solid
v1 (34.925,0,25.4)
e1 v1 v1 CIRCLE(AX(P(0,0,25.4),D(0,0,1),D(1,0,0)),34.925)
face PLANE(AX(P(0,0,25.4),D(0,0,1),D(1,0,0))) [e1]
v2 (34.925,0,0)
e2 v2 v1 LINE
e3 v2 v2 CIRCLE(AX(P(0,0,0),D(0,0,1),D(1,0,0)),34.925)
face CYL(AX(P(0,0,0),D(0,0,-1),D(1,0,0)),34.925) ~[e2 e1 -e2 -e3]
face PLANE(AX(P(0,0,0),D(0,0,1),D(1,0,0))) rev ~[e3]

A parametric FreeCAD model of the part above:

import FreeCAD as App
import Part
import Sketcher

V = App.Vector
Q = App.Units.Quantity

doc = App.newDocument("Part")
body = doc.addObject("PartDesign::Body", "Body")

sketch1 = body.newObject("Sketcher::SketchObject", "Sketch")
sketch1.AttachmentSupport = (doc.getObject("XY_Plane"), [""])
sketch1.MapMode = "FlatFace"
sketch1.addGeometry(Part.Circle(V(0, 0, 0), V(0, 0, 1), 34.925), False)
sketch1.addConstraint([
    Sketcher.Constraint("Coincident", 0, 3, -1, 1),
    Sketcher.Constraint("Diameter", 0, Q("2.75 in")),
])
pad1 = body.newObject("PartDesign::Pad", "Pad")
pad1.Profile = sketch1
pad1.Length = Q("1 in")

doc.recompute()
